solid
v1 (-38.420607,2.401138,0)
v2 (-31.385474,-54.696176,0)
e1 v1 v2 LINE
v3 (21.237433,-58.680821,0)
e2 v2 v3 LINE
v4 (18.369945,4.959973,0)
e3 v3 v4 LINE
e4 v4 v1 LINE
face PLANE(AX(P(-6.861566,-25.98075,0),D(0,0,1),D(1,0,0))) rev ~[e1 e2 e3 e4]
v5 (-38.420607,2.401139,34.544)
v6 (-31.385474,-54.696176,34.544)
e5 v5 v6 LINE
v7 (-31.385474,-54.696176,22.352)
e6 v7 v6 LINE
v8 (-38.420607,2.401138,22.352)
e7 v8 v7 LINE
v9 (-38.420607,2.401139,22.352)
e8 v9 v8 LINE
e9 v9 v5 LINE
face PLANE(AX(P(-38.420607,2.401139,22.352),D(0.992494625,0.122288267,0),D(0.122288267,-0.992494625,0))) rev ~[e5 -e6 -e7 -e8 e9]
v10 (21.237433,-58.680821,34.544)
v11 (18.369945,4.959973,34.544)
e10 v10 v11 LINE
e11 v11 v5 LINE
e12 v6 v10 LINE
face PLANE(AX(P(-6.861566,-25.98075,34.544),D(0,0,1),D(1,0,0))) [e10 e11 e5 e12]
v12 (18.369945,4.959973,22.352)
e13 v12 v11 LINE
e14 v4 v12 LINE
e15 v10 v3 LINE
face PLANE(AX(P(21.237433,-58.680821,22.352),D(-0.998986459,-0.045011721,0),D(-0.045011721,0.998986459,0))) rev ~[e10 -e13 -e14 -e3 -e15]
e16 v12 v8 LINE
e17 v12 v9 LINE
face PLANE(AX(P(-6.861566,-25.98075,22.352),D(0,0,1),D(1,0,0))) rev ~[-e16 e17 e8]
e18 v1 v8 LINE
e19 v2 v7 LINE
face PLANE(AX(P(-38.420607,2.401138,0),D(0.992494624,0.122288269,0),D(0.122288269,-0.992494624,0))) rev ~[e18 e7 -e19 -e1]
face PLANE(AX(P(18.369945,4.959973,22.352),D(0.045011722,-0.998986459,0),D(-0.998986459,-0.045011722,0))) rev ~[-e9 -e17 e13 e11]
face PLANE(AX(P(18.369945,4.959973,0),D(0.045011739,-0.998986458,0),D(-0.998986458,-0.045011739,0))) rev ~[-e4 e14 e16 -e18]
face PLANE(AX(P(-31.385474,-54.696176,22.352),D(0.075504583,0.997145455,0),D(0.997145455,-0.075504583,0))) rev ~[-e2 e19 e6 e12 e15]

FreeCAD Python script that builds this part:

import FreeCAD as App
import Part
import Sketcher
Q = App.Units.Quantity

doc = App.newDocument("Part")
body = doc.addObject("PartDesign::Body", "Body")

# Sketch on XY plane
sketch1 = doc.addObject("Sketcher::SketchObject", "Sketch")
body.addObject(sketch1)
sketch1.AttachmentSupport = (doc.XY_Plane, [""])
sketch1.MapMode = "FlatFace"
sketch1.addGeometry([
    Part.LineSegment(App.Vector(-38, 2, 0), App.Vector(-31, -55, 0)),
    Part.LineSegment(App.Vector(-31, -55, 0), App.Vector(21, -59, 0)),
    Part.LineSegment(App.Vector(21, -59, 0), App.Vector(18, 5, 0)),
    Part.LineSegment(App.Vector(18, 5, 0), App.Vector(-38, 2, 0)),
], False)
sketch1.addConstraint([
    Sketcher.Constraint("Coincident", 0, 2, 1, 1),
    Sketcher.Constraint("Coincident", 1, 2, 2, 1),
    Sketcher.Constraint("Coincident", 2, 2, 3, 1),
    Sketcher.Constraint("Coincident", 3, 2, 0, 1),
    Sketcher.Constraint("Perpendicular", 2, 3),
    Sketcher.Constraint("Distance", 0, Q("57.529091 mm")),
    Sketcher.Constraint("Distance", 1, Q("52.773551 mm")),
    Sketcher.Constraint("Distance", 3, Q("56.84817 mm")),
    Sketcher.Constraint("DistanceY", 1, 2, -1, 1, Q("58.680821 mm")),
    Sketcher.Constraint("DistanceY", -1, 1, 3, 2, Q("2.401138 mm")),
    Sketcher.Constraint("DistanceX", 0, 2, 2, 2, Q("49.755419 mm")),
    Sketcher.Constraint("DistanceX", 0, 2, -1, 1, Q("31.385474 mm")),
])
pad1 = doc.addObject("PartDesign::Pad", "Pad")
body.addObject(pad1)
pad1.Profile = sketch1
pad1.Length = Q("0.88 in")

# Sketch on XY plane
sketch2 = doc.addObject("Sketcher::SketchObject", "Sketch001")
body.addObject(sketch2)
sketch2.AttachmentSupport = (doc.XY_Plane, [""])
sketch2.MapMode = "FlatFace"
sketch2.AttachmentOffset = App.Placement(App.Vector(0, 0, 0.88 * 25.4), App.Rotation())
sketch2.addGeometry([
    Part.LineSegment(App.Vector(18, 5, 0), App.Vector(-38, 2, 0)),
    Part.LineSegment(App.Vector(-38, 2, 0), App.Vector(-31, -55, 0)),
    Part.LineSegment(App.Vector(-31, -55, 0), App.Vector(21, -59, 0)),
    Part.LineSegment(App.Vector(21, -59, 0), App.Vector(18, 5, 0)),
], False)
sketch2.addConstraint([
    Sketcher.Constraint("Coincident", 0, 2, 1, 1),
    Sketcher.Constraint("Coincident", 1, 2, 2, 1),
    Sketcher.Constraint("Coincident", 2, 2, 3, 1),
    Sketcher.Constraint("Coincident", 3, 2, 0, 1),
    Sketcher.Constraint("Perpendicular", 0, 3),
    Sketcher.Constraint("Distance", 0, Q("56.84817 mm")),
    Sketcher.Constraint("Distance", 2, Q("52.773551 mm")),
    Sketcher.Constraint("DistanceY", -1, 1, 0, 2, Q("2.401139 mm")),
    Sketcher.Constraint("DistanceY", 2, 2, -1, 1, Q("58.680821 mm")),
    Sketcher.Constraint("DistanceX", 0, 2, 2, 2, Q("59.65804 mm")),
    Sketcher.Constraint("DistanceX", 1, 2, 3, 2, Q("49.755419 mm")),
    Sketcher.Constraint("DistanceX", 0, 2, -1, 1, Q("38.420607 mm")),
])
pad2 = doc.addObject("PartDesign::Pad", "Pad001")
body.addObject(pad2)
pad2.Profile = sketch2
pad2.Length = Q("0.48 in")

doc.recompute()
